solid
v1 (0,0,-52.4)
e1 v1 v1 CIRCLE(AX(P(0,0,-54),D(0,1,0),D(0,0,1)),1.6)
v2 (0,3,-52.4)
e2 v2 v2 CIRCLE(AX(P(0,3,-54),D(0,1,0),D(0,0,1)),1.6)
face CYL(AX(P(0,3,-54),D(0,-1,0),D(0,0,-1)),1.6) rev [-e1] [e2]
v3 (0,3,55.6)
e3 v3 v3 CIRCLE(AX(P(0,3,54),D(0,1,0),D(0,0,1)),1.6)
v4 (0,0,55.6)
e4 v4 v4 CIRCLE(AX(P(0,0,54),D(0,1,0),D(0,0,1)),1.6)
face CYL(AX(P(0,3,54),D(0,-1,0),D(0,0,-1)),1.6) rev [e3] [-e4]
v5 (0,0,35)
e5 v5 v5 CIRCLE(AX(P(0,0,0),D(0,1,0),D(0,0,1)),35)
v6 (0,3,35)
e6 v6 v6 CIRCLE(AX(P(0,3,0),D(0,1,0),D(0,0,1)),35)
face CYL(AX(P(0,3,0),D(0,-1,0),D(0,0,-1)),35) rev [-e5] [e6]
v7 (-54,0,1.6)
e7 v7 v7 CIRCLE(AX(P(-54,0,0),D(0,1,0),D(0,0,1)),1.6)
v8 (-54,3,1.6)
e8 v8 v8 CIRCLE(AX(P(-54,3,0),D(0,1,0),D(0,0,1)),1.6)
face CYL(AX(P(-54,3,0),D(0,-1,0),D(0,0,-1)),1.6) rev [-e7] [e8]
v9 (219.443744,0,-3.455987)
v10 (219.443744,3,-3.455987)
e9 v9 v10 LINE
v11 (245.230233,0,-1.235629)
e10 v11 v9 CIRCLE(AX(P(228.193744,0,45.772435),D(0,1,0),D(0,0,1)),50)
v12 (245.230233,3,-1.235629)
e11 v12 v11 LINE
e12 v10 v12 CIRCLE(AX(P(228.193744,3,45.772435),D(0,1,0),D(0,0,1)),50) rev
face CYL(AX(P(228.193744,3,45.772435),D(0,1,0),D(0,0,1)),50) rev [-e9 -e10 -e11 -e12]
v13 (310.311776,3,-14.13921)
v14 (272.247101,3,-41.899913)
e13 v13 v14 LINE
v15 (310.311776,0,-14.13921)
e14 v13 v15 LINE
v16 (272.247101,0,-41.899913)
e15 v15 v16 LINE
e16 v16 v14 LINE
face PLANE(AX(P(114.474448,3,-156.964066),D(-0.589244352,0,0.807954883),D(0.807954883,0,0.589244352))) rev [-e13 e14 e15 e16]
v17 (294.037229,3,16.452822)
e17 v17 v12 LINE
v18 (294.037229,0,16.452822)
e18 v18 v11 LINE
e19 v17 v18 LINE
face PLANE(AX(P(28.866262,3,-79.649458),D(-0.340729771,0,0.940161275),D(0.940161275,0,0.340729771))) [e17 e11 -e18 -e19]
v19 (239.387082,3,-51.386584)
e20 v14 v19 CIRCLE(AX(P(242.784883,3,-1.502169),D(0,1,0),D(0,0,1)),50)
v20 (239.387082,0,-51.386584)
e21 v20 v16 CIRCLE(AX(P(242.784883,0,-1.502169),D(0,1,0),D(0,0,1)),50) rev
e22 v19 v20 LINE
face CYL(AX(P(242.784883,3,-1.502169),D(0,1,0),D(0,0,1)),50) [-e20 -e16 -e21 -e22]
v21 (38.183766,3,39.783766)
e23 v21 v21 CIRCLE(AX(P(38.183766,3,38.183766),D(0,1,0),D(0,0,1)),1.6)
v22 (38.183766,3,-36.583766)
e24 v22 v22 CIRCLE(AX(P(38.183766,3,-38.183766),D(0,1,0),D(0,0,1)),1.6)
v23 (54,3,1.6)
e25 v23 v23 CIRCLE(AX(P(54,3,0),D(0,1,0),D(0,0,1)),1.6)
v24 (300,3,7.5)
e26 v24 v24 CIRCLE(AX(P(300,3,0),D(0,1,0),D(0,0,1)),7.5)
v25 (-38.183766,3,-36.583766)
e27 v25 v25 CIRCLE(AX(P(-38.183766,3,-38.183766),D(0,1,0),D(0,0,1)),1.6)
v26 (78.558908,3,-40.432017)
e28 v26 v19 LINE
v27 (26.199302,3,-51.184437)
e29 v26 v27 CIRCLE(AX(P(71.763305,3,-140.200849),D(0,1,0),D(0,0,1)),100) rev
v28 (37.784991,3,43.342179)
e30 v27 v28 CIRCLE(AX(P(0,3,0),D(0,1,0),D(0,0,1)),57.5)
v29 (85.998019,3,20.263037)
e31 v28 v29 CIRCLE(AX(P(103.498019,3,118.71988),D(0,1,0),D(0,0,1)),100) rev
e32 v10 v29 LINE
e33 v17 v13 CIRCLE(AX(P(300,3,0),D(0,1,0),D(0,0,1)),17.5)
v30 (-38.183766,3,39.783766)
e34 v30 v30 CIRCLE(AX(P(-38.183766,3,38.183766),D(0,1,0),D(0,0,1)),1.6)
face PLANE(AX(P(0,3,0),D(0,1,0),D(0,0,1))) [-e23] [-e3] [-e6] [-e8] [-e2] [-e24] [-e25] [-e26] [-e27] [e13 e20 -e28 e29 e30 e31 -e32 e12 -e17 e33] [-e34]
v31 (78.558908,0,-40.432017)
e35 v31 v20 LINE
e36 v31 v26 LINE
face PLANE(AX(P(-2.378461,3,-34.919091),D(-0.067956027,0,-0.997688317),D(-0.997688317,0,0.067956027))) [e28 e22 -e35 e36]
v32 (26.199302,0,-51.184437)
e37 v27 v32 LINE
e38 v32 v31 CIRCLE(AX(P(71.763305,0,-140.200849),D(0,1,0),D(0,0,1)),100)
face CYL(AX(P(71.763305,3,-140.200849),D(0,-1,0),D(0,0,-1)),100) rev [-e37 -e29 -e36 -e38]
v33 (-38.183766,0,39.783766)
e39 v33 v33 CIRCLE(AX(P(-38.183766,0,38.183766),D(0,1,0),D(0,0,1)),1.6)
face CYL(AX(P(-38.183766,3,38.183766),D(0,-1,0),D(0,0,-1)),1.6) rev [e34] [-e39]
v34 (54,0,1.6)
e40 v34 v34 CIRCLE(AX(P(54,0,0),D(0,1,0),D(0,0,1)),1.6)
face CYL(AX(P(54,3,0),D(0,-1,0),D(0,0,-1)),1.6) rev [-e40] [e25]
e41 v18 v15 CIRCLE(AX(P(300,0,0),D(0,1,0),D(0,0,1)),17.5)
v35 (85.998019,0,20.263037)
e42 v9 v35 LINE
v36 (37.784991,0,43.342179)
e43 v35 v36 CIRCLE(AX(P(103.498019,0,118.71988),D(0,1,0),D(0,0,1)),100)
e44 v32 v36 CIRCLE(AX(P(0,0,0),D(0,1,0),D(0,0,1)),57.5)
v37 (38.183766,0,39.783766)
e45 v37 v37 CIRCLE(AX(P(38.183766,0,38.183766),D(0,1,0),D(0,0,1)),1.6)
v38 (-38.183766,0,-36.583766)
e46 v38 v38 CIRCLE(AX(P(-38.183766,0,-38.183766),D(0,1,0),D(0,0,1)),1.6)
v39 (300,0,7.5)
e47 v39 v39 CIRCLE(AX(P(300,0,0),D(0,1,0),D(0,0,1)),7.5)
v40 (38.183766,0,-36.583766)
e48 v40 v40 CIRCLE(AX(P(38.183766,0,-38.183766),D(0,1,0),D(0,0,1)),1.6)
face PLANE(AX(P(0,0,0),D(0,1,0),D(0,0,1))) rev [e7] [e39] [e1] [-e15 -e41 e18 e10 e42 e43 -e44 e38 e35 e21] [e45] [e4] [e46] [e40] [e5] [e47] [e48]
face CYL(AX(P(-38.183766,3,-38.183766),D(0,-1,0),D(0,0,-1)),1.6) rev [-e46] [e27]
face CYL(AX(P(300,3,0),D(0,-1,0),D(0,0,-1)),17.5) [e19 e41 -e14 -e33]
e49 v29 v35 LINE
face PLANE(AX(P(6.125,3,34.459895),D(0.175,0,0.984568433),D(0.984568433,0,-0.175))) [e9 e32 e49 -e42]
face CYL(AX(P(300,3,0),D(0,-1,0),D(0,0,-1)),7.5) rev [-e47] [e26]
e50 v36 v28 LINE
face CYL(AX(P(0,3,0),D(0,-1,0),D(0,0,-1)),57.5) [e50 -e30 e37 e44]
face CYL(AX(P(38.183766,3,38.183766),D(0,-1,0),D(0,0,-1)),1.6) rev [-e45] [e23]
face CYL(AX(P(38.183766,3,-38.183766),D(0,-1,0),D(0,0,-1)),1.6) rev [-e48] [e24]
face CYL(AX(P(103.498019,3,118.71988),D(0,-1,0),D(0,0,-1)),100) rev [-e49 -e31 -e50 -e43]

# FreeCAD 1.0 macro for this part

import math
import FreeCAD as App
import Part
import Sketcher


def edges_at(feature, points):
    """Names of the edges that pass closest to the given points."""
    edges = feature.Shape.Edges
    near = lambda p: min(range(len(edges)), key=lambda i: edges[i].distToShape(Part.Vertex(*p))[0])
    return sorted({f"Edge{near(p) + 1}" for p in points})

doc = App.newDocument("Part")
params = doc.addObject("Spreadsheet::Sheet", "Params")
for row, (alias, value) in enumerate([
    ("sketch1_diameter", "70 mm"),
    ("sketch1_diameter2", "15 mm"),
    ("sketch1_diameter3", "3.2 mm"),
    ("sketch1_radius", "57.5 mm"),
    ("sketch1_radius2", "17.5 mm"),
    ("pad1_length", "3 mm"),
    ("fillet_radius", "50 mm"),
    ("fillet2_radius", "100 mm"),
], start=1):
    params.set(f"A{row}", alias)
    params.set(f"B{row}", "=" + value)
    params.setAlias(f"B{row}", alias)

body = doc.addObject("PartDesign::Body", "Body")

sketch1 = body.newObject("Sketcher::SketchObject", "Sketch")
sketch1.AttachmentSupport = (doc.getObject("XZ_Plane"), [""])
sketch1.MapMode = "FlatFace"
sketch1.addGeometry([
    Part.LineSegment(App.Vector(257.5, -52.6, 0), App.Vector(43.1, -38, 0)),
    Part.ArcOfCircle(Part.Circle(App.Vector(0, 0, 0), App.Vector(0, 0, 1), 57.5), math.radians(27), math.radians(319)),
    Part.LineSegment(App.Vector(51, 26.5, 0), App.Vector(232.6, -5.8, 0)),
    Part.LineSegment(App.Vector(232.6, -5.8, 0), App.Vector(294, 16.5, 0)),
    Part.ArcOfCircle(Part.Circle(App.Vector(300, 0, 0), App.Vector(0, 0, 1), 17.5), math.radians(-54), math.radians(110)),
    Part.LineSegment(App.Vector(310.3, -14.1, 0), App.Vector(257.5, -52.6, 0)),
    Part.Circle(App.Vector(0, 54, 0), App.Vector(0, 0, 1), 1.6),
    Part.Circle(App.Vector(-38.2, 38.2, 0), App.Vector(0, 0, 1), 1.6),
    Part.Circle(App.Vector(38.2, 38.2, 0), App.Vector(0, 0, 1), 1.6),
    Part.Circle(App.Vector(-54, 0, 0), App.Vector(0, 0, 1), 1.6),
    Part.Circle(App.Vector(0, 0, 0), App.Vector(0, 0, 1), 35),
    Part.Circle(App.Vector(54, 0, 0), App.Vector(0, 0, 1), 1.6),
    Part.Circle(App.Vector(-38.2, -38.2, 0), App.Vector(0, 0, 1), 1.6),
    Part.Circle(App.Vector(0, -54, 0), App.Vector(0, 0, 1), 1.6),
    Part.Circle(App.Vector(38.2, -38.2, 0), App.Vector(0, 0, 1), 1.6),
    Part.Circle(App.Vector(300, 0, 0), App.Vector(0, 0, 1), 7.5),
], False)
sketch1.addConstraint([
    Sketcher.Constraint("Coincident", 0, 2, 1, 2),
    Sketcher.Constraint("Coincident", 1, 1, 2, 1),
    Sketcher.Constraint("Coincident", 2, 2, 3, 1),
    Sketcher.Constraint("Tangent", 3, 2, 4, 2),
    Sketcher.Constraint("Tangent", 4, 1, 5, 1),
    Sketcher.Constraint("Coincident", 5, 2, 0, 1),
    Sketcher.Constraint("Coincident", 1, 3, -1, 1),
    Sketcher.Constraint("Coincident", 10, 3, -1, 1),
    Sketcher.Constraint("Coincident", 15, 3, 4, 3),
    Sketcher.Constraint("Equal", 6, 7),
    Sketcher.Constraint("Equal", 7, 8),
    Sketcher.Constraint("Equal", 8, 9),
    Sketcher.Constraint("Equal", 9, 11),
    Sketcher.Constraint("Equal", 11, 12),
    Sketcher.Constraint("Equal", 12, 13),
    Sketcher.Constraint("Equal", 13, 14),
    Sketcher.Constraint("Symmetric", 9, 3, 11, 3, -1, 1),
    Sketcher.Constraint("Symmetric", 8, 3, 12, 3, -1, 1),
    Sketcher.Constraint("Symmetric", 6, 3, 13, 3, -1, 1),
    Sketcher.Constraint("Symmetric", 7, 3, 14, 3, -1, 1),
    Sketcher.Constraint("Symmetric", 7, 3, 8, 3, -2),
    Sketcher.Constraint("PointOnObject", 4, 3, -1),
    Sketcher.Constraint("PointOnObject", 6, 3, -2),
    Sketcher.Constraint("PointOnObject", 9, 3, -1),
    Sketcher.Constraint("Equal", 3, 5),
    Sketcher.Constraint("Diameter", 10, 70.0),
    Sketcher.Constraint("Diameter", 15, 15.0),
    Sketcher.Constraint("Diameter", 6, 3.2),
    Sketcher.Constraint("Radius", 1, 57.5),
    Sketcher.Constraint("Radius", 4, 17.5),
    Sketcher.Constraint("DistanceX", -1, 1, 4, 3, 300.0),
    Sketcher.Constraint("DistanceY", -1, 1, 6, 3, 54.0),
    Sketcher.Constraint("DistanceX", 9, 3, -1, 1, 54.0),
    Sketcher.Constraint("Distance", 2, 184.438922),
    Sketcher.Constraint("Distance", 3, 65.310889),
    Sketcher.Constraint("DistanceX", -1, 1, 1, 1, 51.04172),
    Sketcher.Constraint("DistanceY", 4, 1, -1, 1, 14.13921),
    Sketcher.Constraint("DistanceX", 14, 3, 0, 2, 4.953031),
    Sketcher.Constraint("DistanceY", 0, 2, 2, 2, 32.218752),
    Sketcher.Constraint("DistanceY", -1, 1, 7, 3, 38.183766),
])
sketch1.setExpression("Constraints[25]", "Params.sketch1_diameter")
sketch1.setExpression("Constraints[26]", "Params.sketch1_diameter2")
sketch1.setExpression("Constraints[27]", "Params.sketch1_diameter3")
sketch1.setExpression("Constraints[28]", "Params.sketch1_radius")
sketch1.setExpression("Constraints[29]", "Params.sketch1_radius2")
pad1 = body.newObject("PartDesign::Pad", "Pad")
pad1.Profile = sketch1
pad1.setExpression("Length", "Params.pad1_length")
pad1.Reversed = True
doc.recompute()

fillet = body.newObject("PartDesign::Fillet", "Fillet")
fillet.Base = (pad1, edges_at(pad1, [(232.634, 1.5, -5.801), (257.544, 1.5, -52.623)]))
fillet.setExpression("Radius", "Params.fillet_radius")
doc.recompute()

fillet2 = body.newObject("PartDesign::Fillet", "Fillet001")
fillet2.Base = (fillet, edges_at(fillet, [(51.042, 1.5, 26.476), (43.137, 1.5, -38.019)]))
fillet2.setExpression("Radius", "Params.fillet2_radius")

doc.recompute()
